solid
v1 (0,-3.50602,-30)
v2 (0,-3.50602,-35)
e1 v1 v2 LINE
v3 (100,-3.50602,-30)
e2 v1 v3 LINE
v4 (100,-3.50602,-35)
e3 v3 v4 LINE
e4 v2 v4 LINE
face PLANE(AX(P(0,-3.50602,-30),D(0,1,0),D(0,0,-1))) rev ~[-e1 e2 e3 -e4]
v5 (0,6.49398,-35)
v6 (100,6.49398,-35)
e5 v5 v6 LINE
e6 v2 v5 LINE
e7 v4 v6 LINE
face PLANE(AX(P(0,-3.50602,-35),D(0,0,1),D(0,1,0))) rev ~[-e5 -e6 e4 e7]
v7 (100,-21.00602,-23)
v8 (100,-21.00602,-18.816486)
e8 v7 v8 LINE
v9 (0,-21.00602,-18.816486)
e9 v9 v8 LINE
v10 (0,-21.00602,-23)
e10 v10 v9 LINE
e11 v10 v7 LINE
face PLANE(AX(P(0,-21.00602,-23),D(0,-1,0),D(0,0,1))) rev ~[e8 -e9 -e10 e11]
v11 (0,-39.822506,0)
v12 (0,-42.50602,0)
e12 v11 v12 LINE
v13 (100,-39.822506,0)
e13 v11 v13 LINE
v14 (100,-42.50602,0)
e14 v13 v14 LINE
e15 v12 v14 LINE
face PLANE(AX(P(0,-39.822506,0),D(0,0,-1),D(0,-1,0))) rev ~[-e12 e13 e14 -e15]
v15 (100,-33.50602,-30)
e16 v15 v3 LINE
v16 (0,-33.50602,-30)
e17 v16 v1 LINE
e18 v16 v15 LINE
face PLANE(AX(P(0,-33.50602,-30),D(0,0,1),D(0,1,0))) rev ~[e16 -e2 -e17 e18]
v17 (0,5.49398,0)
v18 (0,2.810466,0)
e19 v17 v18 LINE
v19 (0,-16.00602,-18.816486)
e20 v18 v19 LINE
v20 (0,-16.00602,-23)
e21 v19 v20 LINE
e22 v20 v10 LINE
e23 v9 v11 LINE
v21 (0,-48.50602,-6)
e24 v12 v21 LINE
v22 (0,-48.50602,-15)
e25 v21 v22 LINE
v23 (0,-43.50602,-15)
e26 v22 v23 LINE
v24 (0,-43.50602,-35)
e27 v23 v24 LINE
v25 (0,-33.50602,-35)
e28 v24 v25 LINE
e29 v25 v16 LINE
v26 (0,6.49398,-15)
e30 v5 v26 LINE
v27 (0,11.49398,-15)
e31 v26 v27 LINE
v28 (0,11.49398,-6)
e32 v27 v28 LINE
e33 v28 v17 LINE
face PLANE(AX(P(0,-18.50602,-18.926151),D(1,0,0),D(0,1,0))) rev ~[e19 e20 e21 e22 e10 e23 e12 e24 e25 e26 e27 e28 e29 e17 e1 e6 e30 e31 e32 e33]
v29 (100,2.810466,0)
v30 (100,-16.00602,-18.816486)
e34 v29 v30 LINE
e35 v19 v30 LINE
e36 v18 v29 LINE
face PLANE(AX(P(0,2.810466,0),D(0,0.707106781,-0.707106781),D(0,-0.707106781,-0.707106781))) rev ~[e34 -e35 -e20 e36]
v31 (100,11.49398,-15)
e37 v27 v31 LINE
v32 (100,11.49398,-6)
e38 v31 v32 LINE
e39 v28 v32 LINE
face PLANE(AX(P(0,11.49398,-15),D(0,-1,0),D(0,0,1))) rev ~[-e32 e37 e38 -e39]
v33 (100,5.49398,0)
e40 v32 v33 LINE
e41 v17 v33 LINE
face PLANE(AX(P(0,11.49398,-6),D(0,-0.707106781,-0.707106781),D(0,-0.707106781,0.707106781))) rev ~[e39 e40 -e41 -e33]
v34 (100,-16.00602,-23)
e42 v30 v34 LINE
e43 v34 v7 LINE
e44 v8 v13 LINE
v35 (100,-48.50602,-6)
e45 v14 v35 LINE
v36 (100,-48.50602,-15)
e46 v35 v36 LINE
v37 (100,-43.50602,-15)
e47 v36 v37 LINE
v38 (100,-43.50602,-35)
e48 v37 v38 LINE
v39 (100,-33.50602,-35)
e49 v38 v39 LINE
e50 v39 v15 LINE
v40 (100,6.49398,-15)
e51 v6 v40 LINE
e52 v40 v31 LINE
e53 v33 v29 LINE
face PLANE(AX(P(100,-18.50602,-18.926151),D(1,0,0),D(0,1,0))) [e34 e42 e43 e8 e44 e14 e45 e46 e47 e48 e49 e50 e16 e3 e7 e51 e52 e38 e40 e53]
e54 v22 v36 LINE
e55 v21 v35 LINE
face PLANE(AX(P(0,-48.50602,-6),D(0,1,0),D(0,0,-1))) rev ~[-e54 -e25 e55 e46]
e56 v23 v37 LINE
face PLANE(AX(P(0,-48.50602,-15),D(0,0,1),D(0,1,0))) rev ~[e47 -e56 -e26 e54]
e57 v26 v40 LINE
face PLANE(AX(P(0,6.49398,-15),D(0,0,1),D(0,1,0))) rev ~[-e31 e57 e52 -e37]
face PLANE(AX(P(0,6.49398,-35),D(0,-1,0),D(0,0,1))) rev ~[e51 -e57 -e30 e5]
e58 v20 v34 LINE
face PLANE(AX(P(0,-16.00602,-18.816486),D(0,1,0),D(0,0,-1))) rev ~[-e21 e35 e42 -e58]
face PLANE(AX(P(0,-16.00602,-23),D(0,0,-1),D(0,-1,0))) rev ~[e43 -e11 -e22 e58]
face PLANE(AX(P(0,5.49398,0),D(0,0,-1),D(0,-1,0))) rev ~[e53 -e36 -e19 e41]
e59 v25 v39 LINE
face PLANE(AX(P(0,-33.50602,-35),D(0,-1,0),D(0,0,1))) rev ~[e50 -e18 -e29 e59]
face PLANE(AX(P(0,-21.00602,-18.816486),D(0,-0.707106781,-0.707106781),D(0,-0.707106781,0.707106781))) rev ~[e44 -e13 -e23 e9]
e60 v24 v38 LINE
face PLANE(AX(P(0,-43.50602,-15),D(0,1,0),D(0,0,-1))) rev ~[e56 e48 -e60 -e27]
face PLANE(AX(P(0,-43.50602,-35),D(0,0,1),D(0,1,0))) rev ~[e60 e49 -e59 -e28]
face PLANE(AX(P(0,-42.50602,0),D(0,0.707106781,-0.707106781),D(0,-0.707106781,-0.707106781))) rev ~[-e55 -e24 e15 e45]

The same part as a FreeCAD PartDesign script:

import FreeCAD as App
import Part
import Sketcher

V = App.Vector

doc = App.newDocument("Part")
body = doc.addObject("PartDesign::Body", "Body")

sketch1 = doc.addObject("Sketcher::SketchObject", "Sketch")
body.addObject(sketch1)
sketch1.AttachmentSupport = (doc.YZ_Plane, [""])
sketch1.MapMode = "FlatFace"
sketch1.addGeometry([
    Part.LineSegment(V(-33.5, -30, 0), V(-3.5, -30, 0)),
    Part.LineSegment(V(-3.5, -30, 0), V(-3.5, -35, 0)),
    Part.LineSegment(V(-3.5, -35, 0), V(6.5, -35, 0)),
    Part.LineSegment(V(6.5, -35, 0), V(6.5, -15, 0)),
    Part.LineSegment(V(6.5, -15, 0), V(11.5, -15, 0)),
    Part.LineSegment(V(11.5, -15, 0), V(11.5, -6, 0)),
    Part.LineSegment(V(11.5, -6, 0), V(5.5, 0, 0)),
    Part.LineSegment(V(5.5, 0, 0), V(2.8, 0, 0)),
    Part.LineSegment(V(2.8, 0, 0), V(-16, -18.8, 0)),
    Part.LineSegment(V(-16, -18.8, 0), V(-16, -23, 0)),
    Part.LineSegment(V(-16, -23, 0), V(-21, -23, 0)),
    Part.LineSegment(V(-21, -23, 0), V(-21, -18.8, 0)),
    Part.LineSegment(V(-21, -18.8, 0), V(-39.8, 0, 0)),
    Part.LineSegment(V(-39.8, 0, 0), V(-42.5, 0, 0)),
    Part.LineSegment(V(-42.5, 0, 0), V(-48.5, -6, 0)),
    Part.LineSegment(V(-48.5, -6, 0), V(-48.5, -15, 0)),
    Part.LineSegment(V(-48.5, -15, 0), V(-43.5, -15, 0)),
    Part.LineSegment(V(-43.5, -15, 0), V(-43.5, -35, 0)),
    Part.LineSegment(V(-43.5, -35, 0), V(-33.5, -35, 0)),
    Part.LineSegment(V(-33.5, -35, 0), V(-33.5, -30, 0)),
], False)
sketch1.addConstraint([
    Sketcher.Constraint("Coincident", 0, 2, 1, 1),
    Sketcher.Constraint("Coincident", 1, 2, 2, 1),
    Sketcher.Constraint("Coincident", 2, 2, 3, 1),
    Sketcher.Constraint("Coincident", 3, 2, 4, 1),
    Sketcher.Constraint("Coincident", 4, 2, 5, 1),
    Sketcher.Constraint("Coincident", 5, 2, 6, 1),
    Sketcher.Constraint("Coincident", 6, 2, 7, 1),
    Sketcher.Constraint("Coincident", 7, 2, 8, 1),
    Sketcher.Constraint("Coincident", 8, 2, 9, 1),
    Sketcher.Constraint("Coincident", 9, 2, 10, 1),
    Sketcher.Constraint("Coincident", 10, 2, 11, 1),
    Sketcher.Constraint("Coincident", 11, 2, 12, 1),
    Sketcher.Constraint("Coincident", 12, 2, 13, 1),
    Sketcher.Constraint("Coincident", 13, 2, 14, 1),
    Sketcher.Constraint("Coincident", 14, 2, 15, 1),
    Sketcher.Constraint("Coincident", 15, 2, 16, 1),
    Sketcher.Constraint("Coincident", 16, 2, 17, 1),
    Sketcher.Constraint("Coincident", 17, 2, 18, 1),
    Sketcher.Constraint("Coincident", 18, 2, 19, 1),
    Sketcher.Constraint("Coincident", 19, 2, 0, 1),
    Sketcher.Constraint("Horizontal", 0),
    Sketcher.Constraint("Vertical", 1),
    Sketcher.Constraint("Horizontal", 2),
    Sketcher.Constraint("Vertical", 3),
    Sketcher.Constraint("Horizontal", 4),
    Sketcher.Constraint("Vertical", 5),
    Sketcher.Constraint("Horizontal", 7),
    Sketcher.Constraint("Vertical", 9),
    Sketcher.Constraint("Horizontal", 10),
    Sketcher.Constraint("Vertical", 11),
    Sketcher.Constraint("Horizontal", 13),
    Sketcher.Constraint("Vertical", 15),
    Sketcher.Constraint("Horizontal", 16),
    Sketcher.Constraint("Vertical", 17),
    Sketcher.Constraint("Horizontal", 18),
    Sketcher.Constraint("Vertical", 19),
    Sketcher.Constraint("PointOnObject", 6, 2, -1),
    Sketcher.Constraint("PointOnObject", 12, 2, -1),
    Sketcher.Constraint("Perpendicular", 6, 8),
    Sketcher.Constraint("Perpendicular", 8, 12),
    Sketcher.Constraint("Perpendicular", 12, 14),
    Sketcher.Constraint("Horizontal", 8, 2, 11, 2),
    Sketcher.Constraint("Horizontal", 5, 2, 14, 2),
    Sketcher.Constraint("Horizontal", 4, 2, 15, 2),
    Sketcher.Constraint("Horizontal", 2, 2, 17, 2),
    Sketcher.Constraint("Equal", 4, 10),
    Sketcher.Constraint("Equal", 7, 13),
    Sketcher.Constraint("Equal", 10, 16),
    Sketcher.Constraint("Equal", 2, 18),
    Sketcher.Constraint("Equal", 16, 1),
    Sketcher.Constraint("Equal", 8, 12),
    Sketcher.Constraint("DistanceX", 0, 1, 0, 2, 30.0),
    Sketcher.Constraint("DistanceX", 2, 1, 2, 2, 10.0),
    Sketcher.Constraint("DistanceX", 4, 1, 4, 2, 5.0),
    Sketcher.Constraint("DistanceY", 3, 1, 3, 2, 20.0),
    Sketcher.Constraint("DistanceY", 5, 1, 5, 2, 9.0),
    Sketcher.Constraint("DistanceY", 0, 2, -1, 1, 30.0),
    Sketcher.Constraint("DistanceY", 9, 2, -1, 1, 23.0),
    Sketcher.Constraint("Distance", 8, 26.61053),
    Sketcher.Constraint("DistanceX", 0, 2, -1, 1, 3.50602),
])
pad1 = doc.addObject("PartDesign::Pad", "Pad")
body.addObject(pad1)
pad1.Profile = sketch1
pad1.Length = 100

doc.recompute()
